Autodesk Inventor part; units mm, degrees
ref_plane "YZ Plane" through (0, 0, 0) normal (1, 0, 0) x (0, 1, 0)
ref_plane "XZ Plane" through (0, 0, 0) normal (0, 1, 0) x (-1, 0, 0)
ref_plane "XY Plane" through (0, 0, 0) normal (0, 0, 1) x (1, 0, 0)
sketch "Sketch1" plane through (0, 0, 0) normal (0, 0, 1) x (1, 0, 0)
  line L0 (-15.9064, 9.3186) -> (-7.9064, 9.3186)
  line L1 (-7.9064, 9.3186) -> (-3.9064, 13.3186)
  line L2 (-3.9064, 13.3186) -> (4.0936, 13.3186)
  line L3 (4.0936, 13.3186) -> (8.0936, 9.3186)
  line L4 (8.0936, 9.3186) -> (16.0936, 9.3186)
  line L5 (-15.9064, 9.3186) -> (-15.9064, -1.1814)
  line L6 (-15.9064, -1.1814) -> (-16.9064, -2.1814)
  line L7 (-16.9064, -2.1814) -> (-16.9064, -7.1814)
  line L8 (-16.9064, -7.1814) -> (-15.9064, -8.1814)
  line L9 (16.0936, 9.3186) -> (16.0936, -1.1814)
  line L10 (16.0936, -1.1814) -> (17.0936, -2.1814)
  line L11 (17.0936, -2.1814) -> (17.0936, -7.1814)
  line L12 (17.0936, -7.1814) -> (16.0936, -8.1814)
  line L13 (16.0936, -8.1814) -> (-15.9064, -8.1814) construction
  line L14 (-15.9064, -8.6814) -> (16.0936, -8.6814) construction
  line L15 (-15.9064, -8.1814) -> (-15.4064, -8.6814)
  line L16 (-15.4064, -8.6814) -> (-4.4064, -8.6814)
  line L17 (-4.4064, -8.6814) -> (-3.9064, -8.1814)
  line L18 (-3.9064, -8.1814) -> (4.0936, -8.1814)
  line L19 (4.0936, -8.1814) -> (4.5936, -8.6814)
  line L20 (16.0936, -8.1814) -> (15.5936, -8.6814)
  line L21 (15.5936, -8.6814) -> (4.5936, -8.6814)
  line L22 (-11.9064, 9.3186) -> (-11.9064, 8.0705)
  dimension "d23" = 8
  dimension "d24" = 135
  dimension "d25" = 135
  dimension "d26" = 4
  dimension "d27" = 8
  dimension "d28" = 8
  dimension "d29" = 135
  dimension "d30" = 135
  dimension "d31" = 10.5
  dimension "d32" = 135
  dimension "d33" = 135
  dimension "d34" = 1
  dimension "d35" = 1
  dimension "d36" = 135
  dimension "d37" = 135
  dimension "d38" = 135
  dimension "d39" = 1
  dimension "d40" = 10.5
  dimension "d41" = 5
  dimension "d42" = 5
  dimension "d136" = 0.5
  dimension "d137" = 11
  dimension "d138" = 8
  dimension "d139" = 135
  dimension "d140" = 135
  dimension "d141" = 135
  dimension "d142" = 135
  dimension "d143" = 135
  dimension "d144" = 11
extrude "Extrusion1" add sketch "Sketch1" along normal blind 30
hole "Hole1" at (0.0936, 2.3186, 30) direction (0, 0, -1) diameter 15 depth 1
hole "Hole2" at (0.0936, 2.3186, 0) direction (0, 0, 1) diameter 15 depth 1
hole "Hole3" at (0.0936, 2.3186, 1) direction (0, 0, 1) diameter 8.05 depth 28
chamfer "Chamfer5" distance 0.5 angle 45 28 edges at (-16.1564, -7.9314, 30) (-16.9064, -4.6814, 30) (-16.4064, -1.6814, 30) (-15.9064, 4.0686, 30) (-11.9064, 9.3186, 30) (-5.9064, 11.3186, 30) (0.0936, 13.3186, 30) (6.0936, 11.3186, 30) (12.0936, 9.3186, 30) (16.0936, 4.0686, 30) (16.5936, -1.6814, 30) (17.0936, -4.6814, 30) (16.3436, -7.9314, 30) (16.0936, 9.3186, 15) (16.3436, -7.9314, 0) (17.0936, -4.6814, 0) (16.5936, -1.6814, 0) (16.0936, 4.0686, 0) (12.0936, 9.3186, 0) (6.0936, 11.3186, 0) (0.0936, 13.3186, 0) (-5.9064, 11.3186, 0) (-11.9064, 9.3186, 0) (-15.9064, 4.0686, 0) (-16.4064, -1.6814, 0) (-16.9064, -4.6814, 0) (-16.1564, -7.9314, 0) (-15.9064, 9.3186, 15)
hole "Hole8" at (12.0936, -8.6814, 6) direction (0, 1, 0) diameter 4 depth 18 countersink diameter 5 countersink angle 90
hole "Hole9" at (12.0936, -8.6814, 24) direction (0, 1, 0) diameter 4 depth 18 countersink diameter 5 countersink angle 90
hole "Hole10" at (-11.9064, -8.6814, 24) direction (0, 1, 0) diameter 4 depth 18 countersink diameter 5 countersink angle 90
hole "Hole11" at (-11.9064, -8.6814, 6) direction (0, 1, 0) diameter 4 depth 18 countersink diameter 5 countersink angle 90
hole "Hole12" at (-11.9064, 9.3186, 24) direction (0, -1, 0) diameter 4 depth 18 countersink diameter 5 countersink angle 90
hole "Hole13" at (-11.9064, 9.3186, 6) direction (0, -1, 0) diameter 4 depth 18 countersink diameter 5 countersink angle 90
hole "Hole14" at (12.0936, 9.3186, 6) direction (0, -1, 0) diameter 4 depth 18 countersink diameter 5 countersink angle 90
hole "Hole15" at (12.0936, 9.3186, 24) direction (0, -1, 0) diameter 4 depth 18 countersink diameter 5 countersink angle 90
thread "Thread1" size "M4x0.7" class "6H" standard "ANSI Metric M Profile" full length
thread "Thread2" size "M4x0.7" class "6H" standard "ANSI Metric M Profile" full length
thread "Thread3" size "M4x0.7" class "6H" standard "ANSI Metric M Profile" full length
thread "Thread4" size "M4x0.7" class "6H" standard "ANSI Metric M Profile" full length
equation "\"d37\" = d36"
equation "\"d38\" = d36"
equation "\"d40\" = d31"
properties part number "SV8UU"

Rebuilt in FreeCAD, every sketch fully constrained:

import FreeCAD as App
import Part
import Sketcher
from FreeCAD import Vector


def edges_at(feature, points):
    """Names of the edges that pass closest to the given points."""
    edges = feature.Shape.Edges
    near = lambda p: min(range(len(edges)), key=lambda i: edges[i].distToShape(Part.Vertex(*p))[0])
    return sorted({f"Edge{near(p) + 1}" for p in points})


def add_polygon(sketch, points):
    """Adds a closed chain of lines whose ends are joined by coincident constraints."""
    first, n = sketch.GeometryCount, len(points)
    for a, b in zip(points, points[1:] + points[:1]):
        sketch.addGeometry(Part.LineSegment(App.Vector(*a, 0), App.Vector(*b, 0)), False)
    for i in range(n):
        sketch.addConstraint(Sketcher.Constraint("Coincident", first + i, 2, first + (i + 1) % n, 1))

doc = App.newDocument("Part")
body = doc.addObject("PartDesign::Body", "Body")

# Sketch on XY plane
sketch1 = body.newObject("Sketcher::SketchObject", "Sketch")
sketch1.AttachmentSupport = (doc.getObject("XY_Plane"), [""])
sketch1.MapMode = "FlatFace"
add_polygon(sketch1, [(-7.9, 9.3), (-15.9, 9.3), (-15.9, -1.2), (-16.9, -2.2), (-16.9, -7.2), (-15.4, -8.7), (-4.4, -8.7), (-3.9, -8.2), (4.1, -8.2), (4.6, -8.7), (15.6, -8.7), (17.1, -7.2), (17.1, -2.2), (16.1, -1.2), (16.1, 9.3), (8.1, 9.3), (4.1, 13.3), (-3.9, 13.3)])  # lines 0-17
sketch1.addConstraint(Sketcher.Constraint("Horizontal", 0))
sketch1.addConstraint(Sketcher.Constraint("Vertical", 1))
sketch1.addConstraint(Sketcher.Constraint("Vertical", 3))
sketch1.addConstraint(Sketcher.Constraint("Horizontal", 5))
sketch1.addConstraint(Sketcher.Constraint("Horizontal", 7))
sketch1.addConstraint(Sketcher.Constraint("Horizontal", 9))
sketch1.addConstraint(Sketcher.Constraint("Vertical", 11))
sketch1.addConstraint(Sketcher.Constraint("Vertical", 13))
sketch1.addConstraint(Sketcher.Constraint("Horizontal", 14))
sketch1.addConstraint(Sketcher.Constraint("Horizontal", 16))
sketch1.addConstraint(Sketcher.Constraint("Perpendicular", 2, 4))
sketch1.addConstraint(Sketcher.Constraint("Perpendicular", 4, 6))
sketch1.addConstraint(Sketcher.Constraint("Perpendicular", 6, 8))
sketch1.addConstraint(Sketcher.Constraint("Perpendicular", 8, 10))
sketch1.addConstraint(Sketcher.Constraint("Perpendicular", 10, 12))
sketch1.addConstraint(Sketcher.Constraint("Parallel", 12, 15))
sketch1.addConstraint(Sketcher.Constraint("Perpendicular", 15, 17))
sketch1.addConstraint(Sketcher.Constraint("Horizontal", 5, 2, 8, 2))
sketch1.addConstraint(Sketcher.Constraint("Horizontal", 3, 2, 10, 2))
sketch1.addConstraint(Sketcher.Constraint("Horizontal", 2, 2, 11, 2))
sketch1.addConstraint(Sketcher.Constraint("Horizontal", 1, 2, 12, 2))
sketch1.addConstraint(Sketcher.Constraint("Horizontal", 0, 2, 13, 2))
sketch1.addConstraint(Sketcher.Constraint("Vertical", 7, 2, 15, 2))
sketch1.addConstraint(Sketcher.Constraint("Vertical", 6, 2, 16, 2))
sketch1.addConstraint(Sketcher.Constraint("Equal", 0, 7))
sketch1.addConstraint(Sketcher.Constraint("Equal", 5, 9))
sketch1.addConstraint(Sketcher.Constraint("Equal", 7, 14))
sketch1.addConstraint(Sketcher.Constraint("DistanceX", 0, 2, 0, 1, 8.0))
sketch1.addConstraint(Sketcher.Constraint("DistanceX", 5, 1, 5, 2, 11.0))
sketch1.addConstraint(Sketcher.Constraint("DistanceY", 3, 2, 3, 1, 5.0))
sketch1.addConstraint(Sketcher.Constraint("DistanceY", 1, 2, 1, 1, 10.5))
sketch1.addConstraint(Sketcher.Constraint("DistanceX", 2, 2, 1, 2, 1.0))
sketch1.addConstraint(Sketcher.Constraint("DistanceY", 6, 2, 3, 2, 1.0))
sketch1.addConstraint(Sketcher.Constraint("DistanceX", 7, 2, 14, 2, 4.0))
sketch1.addConstraint(Sketcher.Constraint("DistanceX", 0, 2, -1, 1, 15.9064))
sketch1.addConstraint(Sketcher.Constraint("DistanceY", -1, 1, 0, 2, 9.3186))
pad1 = body.newObject("PartDesign::Pad", "Pad")
pad1.Profile = sketch1
pad1.Length = 30

# Sketch on XY plane
sketch2 = body.newObject("Sketcher::SketchObject", "Sketch001")
sketch2.AttachmentSupport = (doc.getObject("XY_Plane"), [""])
sketch2.MapMode = "FlatFace"
sketch2.AttachmentOffset = App.Placement(Vector(0, 0, 30), App.Rotation())
sketch2.addGeometry(Part.Circle(Vector(0, 2, 0), Vector(0, 0, 1), 8), False)
sketch2.addConstraint(Sketcher.Constraint("Diameter", 0, 15.0))
sketch2.addConstraint(Sketcher.Constraint("DistanceX", -1, 1, 0, 3, 0.0936))
sketch2.addConstraint(Sketcher.Constraint("DistanceY", -1, 1, 0, 3, 2.3186))
doc.recompute()
hole = body.newObject("PartDesign::Hole", "Hole")
hole.Profile = sketch2
hole.ThreadType = "None"
hole.Diameter = 15
hole.DepthType = "Dimension"
hole.Depth = 1
hole.DrillPoint = "Flat"

# Sketch on XY plane
sketch3 = body.newObject("Sketcher::SketchObject", "Sketch002")
sketch3.AttachmentSupport = (doc.getObject("XY_Plane"), [""])
sketch3.MapMode = "FlatFace"
sketch3.addGeometry(Part.Circle(Vector(0, 2, 0), Vector(0, 0, 1), 8), False)
sketch3.addConstraint(Sketcher.Constraint("Diameter", 0, 15.0))
sketch3.addConstraint(Sketcher.Constraint("DistanceX", -1, 1, 0, 3, 0.0936))
sketch3.addConstraint(Sketcher.Constraint("DistanceY", -1, 1, 0, 3, 2.3186))
doc.recompute()
hole2 = body.newObject("PartDesign::Hole", "Hole001")
hole2.Profile = sketch3
hole2.ThreadType = "None"
hole2.Diameter = 15
hole2.DepthType = "Dimension"
hole2.Depth = 1
hole2.DrillPoint = "Flat"
hole2.Reversed = True

# Sketch on XY plane
sketch4 = body.newObject("Sketcher::SketchObject", "Sketch003")
sketch4.AttachmentSupport = (doc.getObject("XY_Plane"), [""])
sketch4.MapMode = "FlatFace"
sketch4.AttachmentOffset = App.Placement(Vector(0, 0, 1), App.Rotation())
sketch4.addGeometry(Part.Circle(Vector(0.1, 2.3, 0), Vector(0, 0, 1), 4), False)
sketch4.addConstraint(Sketcher.Constraint("Diameter", 0, 8.05))
sketch4.addConstraint(Sketcher.Constraint("DistanceX", -1, 1, 0, 3, 0.0936))
sketch4.addConstraint(Sketcher.Constraint("DistanceY", -1, 1, 0, 3, 2.3186))
doc.recompute()
hole3 = body.newObject("PartDesign::Hole", "Hole002")
hole3.Profile = sketch4
hole3.ThreadType = "None"
hole3.Diameter = 8.05
hole3.DepthType = "Dimension"
hole3.Depth = 28
hole3.DrillPoint = "Flat"
hole3.Reversed = True
doc.recompute()

chamfer = body.newObject("PartDesign::Chamfer", "Chamfer")
chamfer.Base = (hole3, edges_at(hole3, [
    (-16.156, -7.931, 30),
    (-16.906, -4.681, 30),
    (-16.406, -1.681, 30),
    (-15.906, 4.069, 30),
    (-11.906, 9.319, 30),
    (-5.906, 11.319, 30),
    (0.094, 13.319, 30),
    (6.094, 11.319, 30),
    (12.094, 9.319, 30),
    (16.094, 4.069, 30),
    (16.594, -1.681, 30),
    (17.094, -4.681, 30),
    (16.344, -7.931, 30),
    (16.094, 9.319, 15),
    (16.344, -7.931, 0),
    (17.094, -4.681, 0),
    (16.594, -1.681, 0),
    (16.094, 4.069, 0),
    (12.094, 9.319, 0),
    (6.094, 11.319, 0),
    (0.094, 13.319, 0),
    (-5.906, 11.319, 0),
    (-11.906, 9.319, 0),
    (-15.906, 4.069, 0),
    (-16.406, -1.681, 0),
    (-16.906, -4.681, 0),
    (-16.156, -7.931, 0),
    (-15.906, 9.319, 15),
]))
chamfer.Size = 0.5

# Sketch on XZ plane
sketch5 = body.newObject("Sketcher::SketchObject", "Sketch004")
sketch5.AttachmentSupport = (doc.getObject("XZ_Plane"), [""])
sketch5.MapMode = "FlatFace"
sketch5.AttachmentOffset = App.Placement(Vector(0, 0, 8.6814), App.Rotation())
sketch5.addGeometry(Part.Circle(Vector(12.1, 6, 0), Vector(0, 0, 1), 2), False)
sketch5.addConstraint(Sketcher.Constraint("Diameter", 0, 4.0))
sketch5.addConstraint(Sketcher.Constraint("DistanceY", -1, 1, 0, 3, 6.0))
sketch5.addConstraint(Sketcher.Constraint("DistanceX", -1, 1, 0, 3, 12.0936))
doc.recompute()
hole4 = body.newObject("PartDesign::Hole", "Hole003")
hole4.Profile = sketch5
hole4.ThreadType = "None"
hole4.Diameter = 4
hole4.DepthType = "Dimension"
hole4.Depth = 18
hole4.DrillPoint = "Flat"
hole4.HoleCutType = "Countersink"
hole4.HoleCutDiameter = 5
hole4.HoleCutCountersinkAngle = 90

# Sketch on XZ plane
sketch6 = body.newObject("Sketcher::SketchObject", "Sketch005")
sketch6.AttachmentSupport = (doc.getObject("XZ_Plane"), [""])
sketch6.MapMode = "FlatFace"
sketch6.AttachmentOffset = App.Placement(Vector(0, 0, 8.6814), App.Rotation())
sketch6.addGeometry(Part.Circle(Vector(12.1, 24, 0), Vector(0, 0, 1), 2), False)
sketch6.addConstraint(Sketcher.Constraint("Diameter", 0, 4.0))
sketch6.addConstraint(Sketcher.Constraint("DistanceY", -1, 1, 0, 3, 24.0))
sketch6.addConstraint(Sketcher.Constraint("DistanceX", -1, 1, 0, 3, 12.0936))
doc.recompute()
hole5 = body.newObject("PartDesign::Hole", "Hole004")
hole5.Profile = sketch6
hole5.ThreadType = "None"
hole5.Diameter = 4
hole5.DepthType = "Dimension"
hole5.Depth = 18
hole5.DrillPoint = "Flat"
hole5.HoleCutType = "Countersink"
hole5.HoleCutDiameter = 5
hole5.HoleCutCountersinkAngle = 90

# Sketch on XZ plane
sketch7 = body.newObject("Sketcher::SketchObject", "Sketch006")
sketch7.AttachmentSupport = (doc.getObject("XZ_Plane"), [""])
sketch7.MapMode = "FlatFace"
sketch7.AttachmentOffset = App.Placement(Vector(0, 0, 8.6814), App.Rotation())
sketch7.addGeometry(Part.Circle(Vector(-11.9, 24, 0), Vector(0, 0, 1), 2), False)
sketch7.addConstraint(Sketcher.Constraint("Diameter", 0, 4.0))
sketch7.addConstraint(Sketcher.Constraint("DistanceY", -1, 1, 0, 3, 24.0))
sketch7.addConstraint(Sketcher.Constraint("DistanceX", 0, 3, -1, 1, 11.9064))
doc.recompute()
hole6 = body.newObject("PartDesign::Hole", "Hole005")
hole6.Profile = sketch7
hole6.ThreadType = "None"
hole6.Diameter = 4
hole6.DepthType = "Dimension"
hole6.Depth = 18
hole6.DrillPoint = "Flat"
hole6.HoleCutType = "Countersink"
hole6.HoleCutDiameter = 5
hole6.HoleCutCountersinkAngle = 90

# Sketch on XZ plane
sketch8 = body.newObject("Sketcher::SketchObject", "Sketch007")
sketch8.AttachmentSupport = (doc.getObject("XZ_Plane"), [""])
sketch8.MapMode = "FlatFace"
sketch8.AttachmentOffset = App.Placement(Vector(0, 0, 8.6814), App.Rotation())
sketch8.addGeometry(Part.Circle(Vector(-11.9, 6, 0), Vector(0, 0, 1), 2), False)
sketch8.addConstraint(Sketcher.Constraint("Diameter", 0, 4.0))
sketch8.addConstraint(Sketcher.Constraint("DistanceY", -1, 1, 0, 3, 6.0))
sketch8.addConstraint(Sketcher.Constraint("DistanceX", 0, 3, -1, 1, 11.9064))
doc.recompute()
hole7 = body.newObject("PartDesign::Hole", "Hole006")
hole7.Profile = sketch8
hole7.ThreadType = "None"
hole7.Diameter = 4
hole7.DepthType = "Dimension"
hole7.Depth = 18
hole7.DrillPoint = "Flat"
hole7.HoleCutType = "Countersink"
hole7.HoleCutDiameter = 5
hole7.HoleCutCountersinkAngle = 90

# Sketch on XZ plane
sketch9 = body.newObject("Sketcher::SketchObject", "Sketch008")
sketch9.AttachmentSupport = (doc.getObject("XZ_Plane"), [""])
sketch9.MapMode = "FlatFace"
sketch9.AttachmentOffset = App.Placement(Vector(0, 0, -9.3186), App.Rotation())
sketch9.addGeometry(Part.Circle(Vector(-11.9, 24, 0), Vector(0, 0, 1), 2), False)
sketch9.addConstraint(Sketcher.Constraint("Diameter", 0, 4.0))
sketch9.addConstraint(Sketcher.Constraint("DistanceY", -1, 1, 0, 3, 24.0))
sketch9.addConstraint(Sketcher.Constraint("DistanceX", 0, 3, -1, 1, 11.9064))
doc.recompute()
hole8 = body.newObject("PartDesign::Hole", "Hole007")
hole8.Profile = sketch9
hole8.ThreadType = "None"
hole8.Diameter = 4
hole8.DepthType = "Dimension"
hole8.Depth = 18
hole8.DrillPoint = "Flat"
hole8.HoleCutType = "Countersink"
hole8.HoleCutDiameter = 5
hole8.HoleCutCountersinkAngle = 90
hole8.Reversed = True

# Sketch on XZ plane
sketch10 = body.newObject("Sketcher::SketchObject", "Sketch009")
sketch10.AttachmentSupport = (doc.getObject("XZ_Plane"), [""])
sketch10.MapMode = "FlatFace"
sketch10.AttachmentOffset = App.Placement(Vector(0, 0, -9.3186), App.Rotation())
sketch10.addGeometry(Part.Circle(Vector(-11.9, 6, 0), Vector(0, 0, 1), 2), False)
sketch10.addConstraint(Sketcher.Constraint("Diameter", 0, 4.0))
sketch10.addConstraint(Sketcher.Constraint("DistanceY", -1, 1, 0, 3, 6.0))
sketch10.addConstraint(Sketcher.Constraint("DistanceX", 0, 3, -1, 1, 11.9064))
doc.recompute()
hole9 = body.newObject("PartDesign::Hole", "Hole008")
hole9.Profile = sketch10
hole9.ThreadType = "None"
hole9.Diameter = 4
hole9.DepthType = "Dimension"
hole9.Depth = 18
hole9.DrillPoint = "Flat"
hole9.HoleCutType = "Countersink"
hole9.HoleCutDiameter = 5
hole9.HoleCutCountersinkAngle = 90
hole9.Reversed = True

# Sketch on XZ plane
sketch11 = body.newObject("Sketcher::SketchObject", "Sketch010")
sketch11.AttachmentSupport = (doc.getObject("XZ_Plane"), [""])
sketch11.MapMode = "FlatFace"
sketch11.AttachmentOffset = App.Placement(Vector(0, 0, -9.3186), App.Rotation())
sketch11.addGeometry(Part.Circle(Vector(12.1, 6, 0), Vector(0, 0, 1), 2), False)
sketch11.addConstraint(Sketcher.Constraint("Diameter", 0, 4.0))
sketch11.addConstraint(Sketcher.Constraint("DistanceY", -1, 1, 0, 3, 6.0))
sketch11.addConstraint(Sketcher.Constraint("DistanceX", -1, 1, 0, 3, 12.0936))
doc.recompute()
hole10 = body.newObject("PartDesign::Hole", "Hole009")
hole10.Profile = sketch11
hole10.ThreadType = "None"
hole10.Diameter = 4
hole10.DepthType = "Dimension"
hole10.Depth = 18
hole10.DrillPoint = "Flat"
hole10.HoleCutType = "Countersink"
hole10.HoleCutDiameter = 5
hole10.HoleCutCountersinkAngle = 90
hole10.Reversed = True

# Sketch on XZ plane
sketch12 = body.newObject("Sketcher::SketchObject", "Sketch011")
sketch12.AttachmentSupport = (doc.getObject("XZ_Plane"), [""])
sketch12.MapMode = "FlatFace"
sketch12.AttachmentOffset = App.Placement(Vector(0, 0, -9.3186), App.Rotation())
sketch12.addGeometry(Part.Circle(Vector(12.1, 24, 0), Vector(0, 0, 1), 2), False)
sketch12.addConstraint(Sketcher.Constraint("Diameter", 0, 4.0))
sketch12.addConstraint(Sketcher.Constraint("DistanceY", -1, 1, 0, 3, 24.0))
sketch12.addConstraint(Sketcher.Constraint("DistanceX", -1, 1, 0, 3, 12.0936))
doc.recompute()
hole11 = body.newObject("PartDesign::Hole", "Hole010")
hole11.Profile = sketch12
hole11.ThreadType = "None"
hole11.Diameter = 4
hole11.DepthType = "Dimension"
hole11.Depth = 18
hole11.DrillPoint = "Flat"
hole11.HoleCutType = "Countersink"
hole11.HoleCutDiameter = 5
hole11.HoleCutCountersinkAngle = 90
hole11.Reversed = True

doc.recompute()
